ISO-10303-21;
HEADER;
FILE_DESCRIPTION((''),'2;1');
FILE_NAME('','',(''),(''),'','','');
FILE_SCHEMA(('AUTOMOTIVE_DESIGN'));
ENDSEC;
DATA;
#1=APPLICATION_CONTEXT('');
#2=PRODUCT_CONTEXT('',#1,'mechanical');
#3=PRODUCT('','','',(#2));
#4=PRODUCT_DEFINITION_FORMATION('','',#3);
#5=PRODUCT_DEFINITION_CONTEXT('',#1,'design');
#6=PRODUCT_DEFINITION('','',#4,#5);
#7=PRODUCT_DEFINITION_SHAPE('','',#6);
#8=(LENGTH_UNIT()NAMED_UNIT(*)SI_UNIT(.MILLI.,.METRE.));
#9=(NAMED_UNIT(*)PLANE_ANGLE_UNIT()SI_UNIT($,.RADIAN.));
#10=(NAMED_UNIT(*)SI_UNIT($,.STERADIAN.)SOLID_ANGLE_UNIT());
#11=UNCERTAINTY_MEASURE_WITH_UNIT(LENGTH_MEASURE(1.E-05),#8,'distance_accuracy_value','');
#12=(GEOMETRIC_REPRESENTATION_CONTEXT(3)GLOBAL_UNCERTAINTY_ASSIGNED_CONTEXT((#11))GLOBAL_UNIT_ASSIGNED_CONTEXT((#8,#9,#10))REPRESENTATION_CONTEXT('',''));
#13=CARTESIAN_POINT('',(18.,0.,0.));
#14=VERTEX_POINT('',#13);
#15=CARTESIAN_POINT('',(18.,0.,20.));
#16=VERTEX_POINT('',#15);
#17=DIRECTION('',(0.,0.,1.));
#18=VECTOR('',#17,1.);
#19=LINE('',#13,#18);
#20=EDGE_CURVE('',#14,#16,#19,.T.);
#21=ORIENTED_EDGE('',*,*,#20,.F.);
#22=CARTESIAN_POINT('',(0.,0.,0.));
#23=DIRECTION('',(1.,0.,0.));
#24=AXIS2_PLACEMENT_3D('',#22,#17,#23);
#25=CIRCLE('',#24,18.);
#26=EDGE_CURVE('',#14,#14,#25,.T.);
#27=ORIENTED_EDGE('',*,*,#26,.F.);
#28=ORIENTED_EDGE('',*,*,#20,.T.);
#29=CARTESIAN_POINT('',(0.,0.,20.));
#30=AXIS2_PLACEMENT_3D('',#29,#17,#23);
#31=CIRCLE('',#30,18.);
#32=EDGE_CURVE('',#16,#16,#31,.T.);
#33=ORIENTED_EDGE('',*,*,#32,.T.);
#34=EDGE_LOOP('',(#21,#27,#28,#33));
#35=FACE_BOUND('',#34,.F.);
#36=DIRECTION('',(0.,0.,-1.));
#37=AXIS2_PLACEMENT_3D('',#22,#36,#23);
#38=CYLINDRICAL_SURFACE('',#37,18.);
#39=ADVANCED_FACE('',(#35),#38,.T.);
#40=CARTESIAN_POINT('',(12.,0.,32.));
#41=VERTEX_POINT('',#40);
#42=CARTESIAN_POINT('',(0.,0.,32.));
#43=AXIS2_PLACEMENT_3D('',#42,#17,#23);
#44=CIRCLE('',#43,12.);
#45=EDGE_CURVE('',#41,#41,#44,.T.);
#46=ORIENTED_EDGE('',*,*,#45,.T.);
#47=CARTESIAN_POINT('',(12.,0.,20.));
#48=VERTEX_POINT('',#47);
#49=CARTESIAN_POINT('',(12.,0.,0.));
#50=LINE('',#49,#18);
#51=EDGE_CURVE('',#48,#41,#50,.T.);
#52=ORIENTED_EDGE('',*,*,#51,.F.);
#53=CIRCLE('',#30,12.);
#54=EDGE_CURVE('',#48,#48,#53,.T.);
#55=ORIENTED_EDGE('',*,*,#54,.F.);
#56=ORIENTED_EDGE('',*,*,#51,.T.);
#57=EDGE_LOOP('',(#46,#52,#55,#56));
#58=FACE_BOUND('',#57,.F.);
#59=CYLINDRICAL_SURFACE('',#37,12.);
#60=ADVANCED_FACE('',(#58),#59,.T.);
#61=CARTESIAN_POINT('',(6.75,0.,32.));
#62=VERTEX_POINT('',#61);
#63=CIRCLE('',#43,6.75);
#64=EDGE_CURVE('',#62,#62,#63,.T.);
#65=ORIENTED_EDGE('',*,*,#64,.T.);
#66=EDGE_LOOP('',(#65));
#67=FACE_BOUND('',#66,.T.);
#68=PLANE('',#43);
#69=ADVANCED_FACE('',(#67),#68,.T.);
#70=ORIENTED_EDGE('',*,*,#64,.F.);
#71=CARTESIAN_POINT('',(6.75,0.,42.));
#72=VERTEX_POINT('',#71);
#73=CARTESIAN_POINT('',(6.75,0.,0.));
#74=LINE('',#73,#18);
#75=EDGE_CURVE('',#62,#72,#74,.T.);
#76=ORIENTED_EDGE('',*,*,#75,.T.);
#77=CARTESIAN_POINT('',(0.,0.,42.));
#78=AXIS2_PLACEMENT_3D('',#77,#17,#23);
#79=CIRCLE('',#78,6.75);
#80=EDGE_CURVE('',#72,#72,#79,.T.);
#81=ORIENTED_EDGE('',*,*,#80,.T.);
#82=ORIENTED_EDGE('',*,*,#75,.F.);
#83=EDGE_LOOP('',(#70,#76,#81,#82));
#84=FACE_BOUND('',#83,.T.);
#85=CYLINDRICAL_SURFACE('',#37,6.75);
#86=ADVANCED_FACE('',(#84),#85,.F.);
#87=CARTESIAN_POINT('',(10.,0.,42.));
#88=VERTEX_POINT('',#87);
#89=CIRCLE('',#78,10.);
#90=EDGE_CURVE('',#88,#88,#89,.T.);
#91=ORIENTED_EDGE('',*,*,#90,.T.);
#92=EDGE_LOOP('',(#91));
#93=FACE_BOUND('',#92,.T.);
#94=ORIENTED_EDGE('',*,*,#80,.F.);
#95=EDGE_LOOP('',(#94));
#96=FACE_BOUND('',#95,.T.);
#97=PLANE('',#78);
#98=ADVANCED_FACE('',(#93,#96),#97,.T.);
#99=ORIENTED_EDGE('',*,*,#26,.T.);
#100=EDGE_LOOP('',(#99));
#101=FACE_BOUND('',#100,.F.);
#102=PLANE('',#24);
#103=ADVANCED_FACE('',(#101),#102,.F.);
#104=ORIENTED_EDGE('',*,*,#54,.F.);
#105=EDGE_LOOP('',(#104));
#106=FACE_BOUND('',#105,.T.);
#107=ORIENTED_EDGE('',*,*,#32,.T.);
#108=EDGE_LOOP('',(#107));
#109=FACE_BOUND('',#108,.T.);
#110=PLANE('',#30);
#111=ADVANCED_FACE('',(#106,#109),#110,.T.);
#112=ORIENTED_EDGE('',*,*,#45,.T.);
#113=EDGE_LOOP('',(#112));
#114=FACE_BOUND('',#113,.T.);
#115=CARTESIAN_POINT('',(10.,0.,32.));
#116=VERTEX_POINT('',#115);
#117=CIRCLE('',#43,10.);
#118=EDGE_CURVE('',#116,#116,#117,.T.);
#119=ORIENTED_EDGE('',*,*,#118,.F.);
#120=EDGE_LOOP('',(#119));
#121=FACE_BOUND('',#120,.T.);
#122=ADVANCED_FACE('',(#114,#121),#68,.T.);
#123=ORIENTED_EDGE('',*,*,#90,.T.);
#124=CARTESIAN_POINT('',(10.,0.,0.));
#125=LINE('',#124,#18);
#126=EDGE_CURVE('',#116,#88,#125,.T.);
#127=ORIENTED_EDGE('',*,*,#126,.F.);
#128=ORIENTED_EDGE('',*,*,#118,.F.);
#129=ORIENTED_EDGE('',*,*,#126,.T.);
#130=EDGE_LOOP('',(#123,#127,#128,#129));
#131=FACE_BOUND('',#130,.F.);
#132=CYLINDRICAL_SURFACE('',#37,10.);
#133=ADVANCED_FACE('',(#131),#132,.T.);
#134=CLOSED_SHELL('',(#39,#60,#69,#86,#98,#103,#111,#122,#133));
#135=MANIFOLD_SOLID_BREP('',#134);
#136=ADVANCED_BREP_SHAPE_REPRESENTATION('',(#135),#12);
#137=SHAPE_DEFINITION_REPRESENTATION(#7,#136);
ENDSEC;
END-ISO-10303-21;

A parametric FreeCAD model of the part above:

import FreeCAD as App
import Part
import Sketcher
from FreeCAD import Vector

doc = App.newDocument("Part")
body = doc.addObject("PartDesign::Body", "Body")

sketch1 = body.newObject("Sketcher::SketchObject", "Sketch")
sketch1.AttachmentSupport = (doc.getObject("XY_Plane"), [""])
sketch1.MapMode = "FlatFace"
sketch1.addGeometry(Part.Circle(Vector(0, 0, 0), Vector(0, 0, 1), 10), False)
sketch1.addGeometry(Part.Circle(Vector(0, 0, 0), Vector(0, 0, 1), 7), False)
sketch1.addConstraint(Sketcher.Constraint("Coincident", 0, 3, -1, 1))
sketch1.addConstraint(Sketcher.Constraint("Coincident", 1, 3, -1, 1))
sketch1.addConstraint(Sketcher.Constraint("Diameter", 0, 20.0))
sketch1.addConstraint(Sketcher.Constraint("Diameter", 1, 13.5))
pad1 = body.newObject("PartDesign::Pad", "Pad")
pad1.Profile = sketch1
pad1.Length = 42

sketch2 = body.newObject("Sketcher::SketchObject", "Sketch001")
sketch2.AttachmentSupport = (doc.getObject("XY_Plane"), [""])
sketch2.MapMode = "FlatFace"
sketch2.addGeometry(Part.Circle(Vector(0, 0, 0), Vector(0, 0, 1), 12), False)
sketch2.addGeometry(Part.Circle(Vector(0, 0, 0), Vector(0, 0, 1), 10), False)
sketch2.addGeometry(Part.Circle(Vector(0, 0, 0), Vector(0, 0, 1), 7), False)
sketch2.addConstraint(Sketcher.Constraint("Coincident", 0, 3, -1, 1))
sketch2.addConstraint(Sketcher.Constraint("Coincident", 1, 3, -1, 1))
sketch2.addConstraint(Sketcher.Constraint("Coincident", 2, 3, -1, 1))
sketch2.addConstraint(Sketcher.Constraint("Diameter", 0, 24.0))
sketch2.addConstraint(Sketcher.Constraint("Diameter", 1, 20.0))
sketch2.addConstraint(Sketcher.Constraint("Diameter", 2, 13.5))
pad2 = body.newObject("PartDesign::Pad", "Pad001")
pad2.Profile = sketch2
pad2.Length = 32

sketch3 = body.newObject("Sketcher::SketchObject", "Sketch002")
sketch3.AttachmentSupport = (doc.getObject("XY_Plane"), [""])
sketch3.MapMode = "FlatFace"
sketch3.addGeometry(Part.Circle(Vector(0, 0, 0), Vector(0, 0, 1), 18), False)
sketch3.addGeometry(Part.Circle(Vector(0, 0, 0), Vector(0, 0, 1), 12), False)
sketch3.addConstraint(Sketcher.Constraint("Coincident", 0, 3, -1, 1))
sketch3.addConstraint(Sketcher.Constraint("Coincident", 1, 3, -1, 1))
sketch3.addConstraint(Sketcher.Constraint("Diameter", 0, 36.0))
sketch3.addConstraint(Sketcher.Constraint("Diameter", 1, 24.0))
pad3 = body.newObject("PartDesign::Pad", "Pad002")
pad3.Profile = sketch3
pad3.Length = 20

doc.recompute()
